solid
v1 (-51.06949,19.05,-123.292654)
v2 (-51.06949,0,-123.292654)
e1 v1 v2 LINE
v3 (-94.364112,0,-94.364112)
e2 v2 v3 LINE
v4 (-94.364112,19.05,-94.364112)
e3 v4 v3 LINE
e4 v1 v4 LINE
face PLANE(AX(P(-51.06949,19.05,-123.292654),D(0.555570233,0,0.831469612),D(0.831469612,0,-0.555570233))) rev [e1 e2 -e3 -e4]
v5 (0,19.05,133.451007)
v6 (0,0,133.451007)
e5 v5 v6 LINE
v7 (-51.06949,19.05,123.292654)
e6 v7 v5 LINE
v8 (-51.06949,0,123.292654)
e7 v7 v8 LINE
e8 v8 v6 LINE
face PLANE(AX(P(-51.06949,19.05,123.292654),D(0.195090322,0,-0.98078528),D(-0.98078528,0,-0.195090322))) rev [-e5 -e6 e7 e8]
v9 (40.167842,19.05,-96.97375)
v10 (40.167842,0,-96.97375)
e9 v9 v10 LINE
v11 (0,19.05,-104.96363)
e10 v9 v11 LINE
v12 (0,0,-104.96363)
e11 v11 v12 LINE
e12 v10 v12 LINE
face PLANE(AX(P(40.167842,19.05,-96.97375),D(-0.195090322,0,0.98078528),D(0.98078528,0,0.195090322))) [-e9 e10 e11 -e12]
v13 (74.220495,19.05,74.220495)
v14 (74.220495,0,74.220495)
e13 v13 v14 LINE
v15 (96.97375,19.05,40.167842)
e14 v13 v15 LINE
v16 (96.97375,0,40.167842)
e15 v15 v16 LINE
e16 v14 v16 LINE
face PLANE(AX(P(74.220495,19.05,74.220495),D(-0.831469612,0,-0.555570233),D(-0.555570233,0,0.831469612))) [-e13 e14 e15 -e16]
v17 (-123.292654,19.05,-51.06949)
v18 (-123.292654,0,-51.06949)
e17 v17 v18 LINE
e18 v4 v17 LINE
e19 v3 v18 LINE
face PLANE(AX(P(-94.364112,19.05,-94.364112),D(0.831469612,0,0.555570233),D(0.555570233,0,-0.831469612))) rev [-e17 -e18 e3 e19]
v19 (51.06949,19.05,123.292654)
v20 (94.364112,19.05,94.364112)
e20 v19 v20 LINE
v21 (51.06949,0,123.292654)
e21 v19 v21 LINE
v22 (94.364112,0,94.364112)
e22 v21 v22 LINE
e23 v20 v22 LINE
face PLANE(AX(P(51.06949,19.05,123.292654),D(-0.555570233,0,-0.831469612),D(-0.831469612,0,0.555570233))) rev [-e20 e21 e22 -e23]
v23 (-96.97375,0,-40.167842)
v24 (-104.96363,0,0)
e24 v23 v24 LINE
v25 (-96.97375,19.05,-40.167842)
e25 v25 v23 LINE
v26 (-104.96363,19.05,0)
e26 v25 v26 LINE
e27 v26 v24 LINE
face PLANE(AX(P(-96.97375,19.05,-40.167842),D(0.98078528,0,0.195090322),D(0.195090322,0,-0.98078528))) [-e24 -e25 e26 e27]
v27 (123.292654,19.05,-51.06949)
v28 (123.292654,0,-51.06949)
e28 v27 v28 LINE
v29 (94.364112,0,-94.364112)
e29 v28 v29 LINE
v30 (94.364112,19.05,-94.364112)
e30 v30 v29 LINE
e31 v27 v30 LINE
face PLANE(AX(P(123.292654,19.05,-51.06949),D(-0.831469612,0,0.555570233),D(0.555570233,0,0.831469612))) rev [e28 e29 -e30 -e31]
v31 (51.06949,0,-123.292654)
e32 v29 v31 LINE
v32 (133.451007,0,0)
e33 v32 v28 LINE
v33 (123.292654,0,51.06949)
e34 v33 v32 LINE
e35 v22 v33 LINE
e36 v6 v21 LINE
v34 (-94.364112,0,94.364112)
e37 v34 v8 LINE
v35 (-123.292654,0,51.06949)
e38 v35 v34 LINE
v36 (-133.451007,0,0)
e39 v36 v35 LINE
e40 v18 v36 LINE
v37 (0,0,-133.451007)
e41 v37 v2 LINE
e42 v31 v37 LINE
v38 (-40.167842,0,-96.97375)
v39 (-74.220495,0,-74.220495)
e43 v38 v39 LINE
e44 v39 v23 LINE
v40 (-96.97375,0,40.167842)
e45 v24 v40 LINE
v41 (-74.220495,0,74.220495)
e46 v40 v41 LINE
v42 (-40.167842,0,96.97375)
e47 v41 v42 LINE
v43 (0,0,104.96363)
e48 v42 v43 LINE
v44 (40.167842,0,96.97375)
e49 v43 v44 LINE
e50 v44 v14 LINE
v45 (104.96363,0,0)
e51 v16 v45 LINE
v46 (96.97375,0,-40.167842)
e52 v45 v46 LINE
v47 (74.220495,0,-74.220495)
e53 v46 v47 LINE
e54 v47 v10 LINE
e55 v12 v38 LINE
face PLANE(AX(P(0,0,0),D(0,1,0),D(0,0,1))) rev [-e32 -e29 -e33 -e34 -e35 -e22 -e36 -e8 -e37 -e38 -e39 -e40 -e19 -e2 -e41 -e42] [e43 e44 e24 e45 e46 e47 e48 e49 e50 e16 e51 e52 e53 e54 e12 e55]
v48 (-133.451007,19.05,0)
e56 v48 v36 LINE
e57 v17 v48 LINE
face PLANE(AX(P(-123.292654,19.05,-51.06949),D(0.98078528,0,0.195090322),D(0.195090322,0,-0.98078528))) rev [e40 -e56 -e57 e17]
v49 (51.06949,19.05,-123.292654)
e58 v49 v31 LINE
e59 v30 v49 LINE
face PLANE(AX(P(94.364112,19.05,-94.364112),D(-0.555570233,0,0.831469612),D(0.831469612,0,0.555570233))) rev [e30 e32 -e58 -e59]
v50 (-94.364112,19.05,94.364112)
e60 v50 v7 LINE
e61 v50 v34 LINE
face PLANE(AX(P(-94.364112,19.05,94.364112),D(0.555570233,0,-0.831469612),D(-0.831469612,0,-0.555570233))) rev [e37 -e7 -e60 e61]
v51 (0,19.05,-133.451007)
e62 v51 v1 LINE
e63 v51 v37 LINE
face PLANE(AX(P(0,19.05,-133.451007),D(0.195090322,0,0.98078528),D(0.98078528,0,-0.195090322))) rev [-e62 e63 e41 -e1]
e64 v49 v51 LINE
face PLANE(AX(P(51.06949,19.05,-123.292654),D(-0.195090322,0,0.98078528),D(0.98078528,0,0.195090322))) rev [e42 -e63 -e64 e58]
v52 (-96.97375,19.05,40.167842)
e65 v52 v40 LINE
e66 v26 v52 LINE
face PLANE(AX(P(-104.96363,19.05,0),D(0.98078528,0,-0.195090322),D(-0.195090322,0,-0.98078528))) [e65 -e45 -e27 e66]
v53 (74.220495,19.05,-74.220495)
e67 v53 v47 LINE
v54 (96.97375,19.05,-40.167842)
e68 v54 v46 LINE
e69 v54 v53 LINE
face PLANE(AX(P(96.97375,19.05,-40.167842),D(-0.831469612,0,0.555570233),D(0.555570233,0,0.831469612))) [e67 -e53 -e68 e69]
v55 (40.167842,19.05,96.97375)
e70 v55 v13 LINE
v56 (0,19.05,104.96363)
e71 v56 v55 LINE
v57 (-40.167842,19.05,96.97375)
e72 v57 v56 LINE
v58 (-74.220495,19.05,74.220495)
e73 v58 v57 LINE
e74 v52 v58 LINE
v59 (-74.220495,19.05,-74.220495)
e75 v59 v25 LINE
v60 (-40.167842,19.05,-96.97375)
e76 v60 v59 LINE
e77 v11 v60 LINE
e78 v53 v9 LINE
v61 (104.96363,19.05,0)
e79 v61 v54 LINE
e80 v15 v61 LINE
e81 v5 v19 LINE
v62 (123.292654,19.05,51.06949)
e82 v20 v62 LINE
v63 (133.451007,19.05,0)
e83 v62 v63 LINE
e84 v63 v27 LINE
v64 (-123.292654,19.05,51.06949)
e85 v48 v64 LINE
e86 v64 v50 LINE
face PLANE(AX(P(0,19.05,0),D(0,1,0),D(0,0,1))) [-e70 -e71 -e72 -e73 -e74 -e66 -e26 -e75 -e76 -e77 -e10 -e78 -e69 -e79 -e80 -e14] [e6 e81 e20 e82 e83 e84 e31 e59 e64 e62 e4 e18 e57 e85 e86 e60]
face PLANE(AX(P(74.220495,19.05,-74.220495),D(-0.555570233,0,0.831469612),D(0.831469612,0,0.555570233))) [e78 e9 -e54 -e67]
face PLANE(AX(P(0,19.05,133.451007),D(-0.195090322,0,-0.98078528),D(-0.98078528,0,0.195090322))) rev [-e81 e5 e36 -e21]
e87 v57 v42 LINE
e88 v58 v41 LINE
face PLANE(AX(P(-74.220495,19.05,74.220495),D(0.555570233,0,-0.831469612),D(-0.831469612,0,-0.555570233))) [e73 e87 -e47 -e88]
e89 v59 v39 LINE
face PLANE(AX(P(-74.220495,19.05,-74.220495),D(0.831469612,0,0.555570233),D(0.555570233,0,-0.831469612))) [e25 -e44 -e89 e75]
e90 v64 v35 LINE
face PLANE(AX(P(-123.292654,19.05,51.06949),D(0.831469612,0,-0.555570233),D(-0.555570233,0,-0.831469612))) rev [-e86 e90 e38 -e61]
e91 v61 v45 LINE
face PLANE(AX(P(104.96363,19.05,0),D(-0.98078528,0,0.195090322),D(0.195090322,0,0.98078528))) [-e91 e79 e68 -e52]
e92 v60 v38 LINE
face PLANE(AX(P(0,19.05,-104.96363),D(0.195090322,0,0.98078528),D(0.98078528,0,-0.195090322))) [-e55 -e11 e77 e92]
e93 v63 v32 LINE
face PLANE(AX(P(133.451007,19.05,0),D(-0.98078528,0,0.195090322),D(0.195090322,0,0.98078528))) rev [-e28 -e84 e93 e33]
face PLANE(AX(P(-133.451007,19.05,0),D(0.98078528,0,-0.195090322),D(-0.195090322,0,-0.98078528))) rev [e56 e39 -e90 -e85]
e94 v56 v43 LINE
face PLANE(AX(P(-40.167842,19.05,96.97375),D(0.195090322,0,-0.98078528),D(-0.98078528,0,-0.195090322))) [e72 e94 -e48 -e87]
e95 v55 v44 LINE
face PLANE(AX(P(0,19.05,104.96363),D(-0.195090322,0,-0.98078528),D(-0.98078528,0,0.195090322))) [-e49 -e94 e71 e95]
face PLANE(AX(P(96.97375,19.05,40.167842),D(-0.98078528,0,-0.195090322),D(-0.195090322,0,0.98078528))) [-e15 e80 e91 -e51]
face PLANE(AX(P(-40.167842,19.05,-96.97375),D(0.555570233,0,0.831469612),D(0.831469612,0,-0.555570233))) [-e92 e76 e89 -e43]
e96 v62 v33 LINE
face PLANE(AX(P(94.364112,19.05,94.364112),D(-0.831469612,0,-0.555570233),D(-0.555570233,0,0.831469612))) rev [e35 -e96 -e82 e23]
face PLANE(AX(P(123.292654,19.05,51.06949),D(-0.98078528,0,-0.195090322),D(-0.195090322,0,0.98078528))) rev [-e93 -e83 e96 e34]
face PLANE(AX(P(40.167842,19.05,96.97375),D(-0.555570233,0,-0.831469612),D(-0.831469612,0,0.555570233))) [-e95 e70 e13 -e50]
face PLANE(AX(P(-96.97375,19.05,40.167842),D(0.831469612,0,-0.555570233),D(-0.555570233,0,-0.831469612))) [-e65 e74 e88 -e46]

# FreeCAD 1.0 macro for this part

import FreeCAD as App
import Part
import Sketcher

V = App.Vector
Q = App.Units.Quantity

doc = App.newDocument("Part")
params = doc.addObject("Spreadsheet::Sheet", "Params")
for row, (alias, value) in enumerate([
    ("sketch1_length", "2.05 in"),
    ("pad1_length", "0.75 in"),
], start=1):
    params.set(f"A{row}", alias)
    params.set(f"B{row}", "=" + value)
    params.setAlias(f"B{row}", alias)

body = doc.addObject("PartDesign::Body", "Body")

sketch1 = doc.addObject("Sketcher::SketchObject", "Sketch")
body.addObject(sketch1)
sketch1.AttachmentSupport = (doc.XZ_Plane, [""])
sketch1.MapMode = "FlatFace"
sketch1.addGeometry([
    Part.LineSegment(V(133.451007, 0, 0), V(123.292654, -51.06949, 0)),
    Part.LineSegment(V(123.292654, -51.06949, 0), V(94.364112, -94.364112, 0)),
    Part.LineSegment(V(94.364112, -94.364112, 0), V(51.06949, -123.292654, 0)),
    Part.LineSegment(V(51.06949, -123.292654, 0), V(0, -133.451007, 0)),
    Part.LineSegment(V(0, -133.451007, 0), V(-51.06949, -123.292654, 0)),
    Part.LineSegment(V(-51.06949, -123.292654, 0), V(-94.364112, -94.364112, 0)),
    Part.LineSegment(V(-94.364112, -94.364112, 0), V(-123.292654, -51.06949, 0)),
    Part.LineSegment(V(-123.292654, -51.06949, 0), V(-133.451007, 0, 0)),
    Part.LineSegment(V(-133.451007, 0, 0), V(-123.292654, 51.06949, 0)),
    Part.LineSegment(V(-123.292654, 51.06949, 0), V(-94.364112, 94.364112, 0)),
    Part.LineSegment(V(-94.364112, 94.364112, 0), V(-51.06949, 123.292654, 0)),
    Part.LineSegment(V(-51.06949, 123.292654, 0), V(0, 133.451007, 0)),
    Part.LineSegment(V(0, 133.451007, 0), V(51.06949, 123.292654, 0)),
    Part.LineSegment(V(51.06949, 123.292654, 0), V(94.364112, 94.364112, 0)),
    Part.LineSegment(V(94.364112, 94.364112, 0), V(123.292654, 51.06949, 0)),
    Part.LineSegment(V(123.292654, 51.06949, 0), V(133.451007, 0, 0)),
    Part.LineSegment(V(96.97375, -40.167842, 0), V(104.96363, 0, 0)),
    Part.LineSegment(V(104.96363, 0, 0), V(96.97375, 40.167842, 0)),
    Part.LineSegment(V(96.97375, 40.167842, 0), V(74.220495, 74.220495, 0)),
    Part.LineSegment(V(74.220495, 74.220495, 0), V(40.167842, 96.97375, 0)),
    Part.LineSegment(V(40.167842, 96.97375, 0), V(0, 104.96363, 0)),
    Part.LineSegment(V(0, 104.96363, 0), V(-40.167842, 96.97375, 0)),
    Part.LineSegment(V(-40.167842, 96.97375, 0), V(-74.220495, 74.220495, 0)),
    Part.LineSegment(V(-74.220495, 74.220495, 0), V(-96.97375, 40.167842, 0)),
    Part.LineSegment(V(-96.97375, 40.167842, 0), V(-104.96363, 0, 0)),
    Part.LineSegment(V(-104.96363, 0, 0), V(-96.97375, -40.167842, 0)),
    Part.LineSegment(V(-96.97375, -40.167842, 0), V(-74.220495, -74.220495, 0)),
    Part.LineSegment(V(-74.220495, -74.220495, 0), V(-40.167842, -96.97375, 0)),
    Part.LineSegment(V(-40.167842, -96.97375, 0), V(0, -104.96363, 0)),
    Part.LineSegment(V(0, -104.96363, 0), V(40.167842, -96.97375, 0)),
    Part.LineSegment(V(40.167842, -96.97375, 0), V(74.220495, -74.220495, 0)),
    Part.LineSegment(V(74.220495, -74.220495, 0), V(96.97375, -40.167842, 0)),
], False)
sketch1.addConstraint([
    Sketcher.Constraint("Coincident", 0, 2, 1, 1),
    Sketcher.Constraint("Coincident", 1, 2, 2, 1),
    Sketcher.Constraint("Coincident", 2, 2, 3, 1),
    Sketcher.Constraint("Coincident", 3, 2, 4, 1),
    Sketcher.Constraint("Coincident", 4, 2, 5, 1),
    Sketcher.Constraint("Coincident", 5, 2, 6, 1),
    Sketcher.Constraint("Coincident", 6, 2, 7, 1),
    Sketcher.Constraint("Coincident", 7, 2, 8, 1),
    Sketcher.Constraint("Coincident", 8, 2, 9, 1),
    Sketcher.Constraint("Coincident", 9, 2, 10, 1),
    Sketcher.Constraint("Coincident", 10, 2, 11, 1),
    Sketcher.Constraint("Coincident", 11, 2, 12, 1),
    Sketcher.Constraint("Coincident", 12, 2, 13, 1),
    Sketcher.Constraint("Coincident", 13, 2, 14, 1),
    Sketcher.Constraint("Coincident", 14, 2, 15, 1),
    Sketcher.Constraint("Coincident", 15, 2, 0, 1),
    Sketcher.Constraint("Coincident", 16, 2, 17, 1),
    Sketcher.Constraint("Coincident", 17, 2, 18, 1),
    Sketcher.Constraint("Coincident", 18, 2, 19, 1),
    Sketcher.Constraint("Coincident", 19, 2, 20, 1),
    Sketcher.Constraint("Coincident", 20, 2, 21, 1),
    Sketcher.Constraint("Coincident", 21, 2, 22, 1),
    Sketcher.Constraint("Coincident", 22, 2, 23, 1),
    Sketcher.Constraint("Coincident", 23, 2, 24, 1),
    Sketcher.Constraint("Coincident", 24, 2, 25, 1),
    Sketcher.Constraint("Coincident", 25, 2, 26, 1),
    Sketcher.Constraint("Coincident", 26, 2, 27, 1),
    Sketcher.Constraint("Coincident", 27, 2, 28, 1),
    Sketcher.Constraint("Coincident", 28, 2, 29, 1),
    Sketcher.Constraint("Coincident", 29, 2, 30, 1),
    Sketcher.Constraint("Coincident", 30, 2, 31, 1),
    Sketcher.Constraint("Coincident", 31, 2, 16, 1),
    Sketcher.Constraint("Symmetric", 0, 2, 8, 2, -1, 1),
    Sketcher.Constraint("Symmetric", 1, 2, 9, 2, -1, 1),
    Sketcher.Constraint("Symmetric", 2, 2, 10, 2, -1, 1),
    Sketcher.Constraint("Symmetric", 3, 2, 11, 2, -1, 1),
    Sketcher.Constraint("Symmetric", 4, 2, 12, 2, -1, 1),
    Sketcher.Constraint("Symmetric", 5, 2, 13, 2, -1, 1),
    Sketcher.Constraint("Symmetric", 6, 2, 14, 2, -1, 1),
    Sketcher.Constraint("Symmetric", 7, 2, 15, 2, -1, 1),
    Sketcher.Constraint("Symmetric", 16, 2, 24, 2, -1, 1),
    Sketcher.Constraint("Symmetric", 17, 2, 25, 2, -1, 1),
    Sketcher.Constraint("Symmetric", 18, 2, 26, 2, -1, 1),
    Sketcher.Constraint("Symmetric", 19, 2, 27, 2, -1, 1),
    Sketcher.Constraint("Symmetric", 20, 2, 28, 2, -1, 1),
    Sketcher.Constraint("Symmetric", 21, 2, 29, 2, -1, 1),
    Sketcher.Constraint("Symmetric", 22, 2, 30, 2, -1, 1),
    Sketcher.Constraint("Symmetric", 23, 2, 31, 2, -1, 1),
    Sketcher.Constraint("Symmetric", 2, 2, 4, 2, -2),
    Sketcher.Constraint("Symmetric", 1, 2, 5, 2, -2),
    Sketcher.Constraint("Symmetric", 0, 2, 6, 2, -2),
    Sketcher.Constraint("Symmetric", 19, 2, 21, 2, -2),
    Sketcher.Constraint("Symmetric", 18, 2, 22, 2, -2),
    Sketcher.Constraint("Symmetric", 17, 2, 23, 2, -2),
    Sketcher.Constraint("PointOnObject", 3, 2, -2),
    Sketcher.Constraint("PointOnObject", 7, 2, -1),
    Sketcher.Constraint("PointOnObject", 16, 2, -1),
    Sketcher.Constraint("PointOnObject", 20, 2, -2),
    Sketcher.Constraint("Perpendicular", 0, 4),
    Sketcher.Constraint("Perpendicular", 1, 5),
    Sketcher.Constraint("Perpendicular", 12, 16),
    Sketcher.Constraint("Parallel", 14, 18),
    Sketcher.Constraint("Parallel", 13, 19),
    Sketcher.Constraint("Perpendicular", 16, 20),
    Sketcher.Constraint("Equal", 0, 1),
    Sketcher.Constraint("Equal", 1, 2),
    Sketcher.Constraint("Equal", 2, 3),
    Sketcher.Constraint("Equal", 17, 18),
    Sketcher.Constraint("Equal", 18, 19),
    Sketcher.Constraint("Equal", 19, 20),
    Sketcher.Constraint("Distance", 0, Q("2.05 in")),
    Sketcher.Constraint("Angle", 0, Q("-101.25 deg")),
    Sketcher.Constraint("Angle", 1, Q("-123.75 deg")),
    Sketcher.Constraint("DistanceX", -1, 1, 16, 2, Q("104.96363 mm")),
])
sketch1.setExpression("Constraints[70]", "Params.sketch1_length")
pad1 = doc.addObject("PartDesign::Pad", "Pad")
body.addObject(pad1)
pad1.Profile = sketch1
pad1.setExpression("Length", "Params.pad1_length")
pad1.Reversed = True

doc.recompute()
